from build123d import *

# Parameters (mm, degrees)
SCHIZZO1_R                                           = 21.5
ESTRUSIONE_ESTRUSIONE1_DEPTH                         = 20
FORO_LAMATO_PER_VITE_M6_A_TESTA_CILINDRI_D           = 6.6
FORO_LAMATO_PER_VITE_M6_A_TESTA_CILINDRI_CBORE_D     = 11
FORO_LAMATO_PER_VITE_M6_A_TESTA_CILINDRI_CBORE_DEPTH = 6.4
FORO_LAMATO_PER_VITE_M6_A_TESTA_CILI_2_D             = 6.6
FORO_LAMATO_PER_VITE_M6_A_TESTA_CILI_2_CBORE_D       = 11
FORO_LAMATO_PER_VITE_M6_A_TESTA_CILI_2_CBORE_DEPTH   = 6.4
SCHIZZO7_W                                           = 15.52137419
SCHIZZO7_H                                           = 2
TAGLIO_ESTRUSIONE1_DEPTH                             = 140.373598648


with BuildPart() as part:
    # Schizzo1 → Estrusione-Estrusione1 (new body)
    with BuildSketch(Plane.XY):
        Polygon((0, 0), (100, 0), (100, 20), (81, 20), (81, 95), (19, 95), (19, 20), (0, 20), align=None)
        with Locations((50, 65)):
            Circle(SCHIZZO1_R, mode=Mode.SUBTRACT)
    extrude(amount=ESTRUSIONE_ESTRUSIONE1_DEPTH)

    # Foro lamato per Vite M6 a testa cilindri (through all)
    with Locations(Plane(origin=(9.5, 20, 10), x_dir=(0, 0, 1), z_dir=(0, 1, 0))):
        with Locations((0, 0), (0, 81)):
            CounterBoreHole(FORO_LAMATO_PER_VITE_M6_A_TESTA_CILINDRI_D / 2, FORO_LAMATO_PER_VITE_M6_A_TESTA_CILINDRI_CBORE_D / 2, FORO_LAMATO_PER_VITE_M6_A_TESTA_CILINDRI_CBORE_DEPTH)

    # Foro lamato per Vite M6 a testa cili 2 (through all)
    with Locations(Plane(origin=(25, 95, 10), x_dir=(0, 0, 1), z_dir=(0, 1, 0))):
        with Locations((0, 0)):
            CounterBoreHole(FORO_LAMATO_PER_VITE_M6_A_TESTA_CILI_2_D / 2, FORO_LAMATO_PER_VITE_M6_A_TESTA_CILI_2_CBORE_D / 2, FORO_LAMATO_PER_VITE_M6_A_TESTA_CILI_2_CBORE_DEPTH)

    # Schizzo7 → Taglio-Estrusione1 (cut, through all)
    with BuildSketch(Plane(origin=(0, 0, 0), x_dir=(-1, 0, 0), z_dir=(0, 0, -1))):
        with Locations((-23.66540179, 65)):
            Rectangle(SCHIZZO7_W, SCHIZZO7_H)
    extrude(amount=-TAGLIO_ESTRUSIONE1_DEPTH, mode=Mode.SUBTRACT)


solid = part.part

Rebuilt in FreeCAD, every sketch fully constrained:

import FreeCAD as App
import Part
import Sketcher
Q = App.Units.Quantity

doc = App.newDocument("Part")
body = doc.addObject("PartDesign::Body", "Body")

sketch1 = doc.addObject("Sketcher::SketchObject", "Sketch")
body.addObject(sketch1)
sketch1.AttachmentSupport = (doc.XY_Plane, [""])
sketch1.MapMode = "FlatFace"
sketch1.addGeometry(Part.LineSegment(App.Vector(0, 0, 0), App.Vector(100, 0, 0)), False)
sketch1.addGeometry(Part.LineSegment(App.Vector(100, 0, 0), App.Vector(100, 20, 0)), False)
sketch1.addGeometry(Part.LineSegment(App.Vector(100, 20, 0), App.Vector(81, 20, 0)), False)
sketch1.addGeometry(Part.LineSegment(App.Vector(81, 20, 0), App.Vector(81, 95, 0)), False)
sketch1.addGeometry(Part.LineSegment(App.Vector(81, 95, 0), App.Vector(19, 95, 0)), False)
sketch1.addGeometry(Part.LineSegment(App.Vector(19, 95, 0), App.Vector(19, 20, 0)), False)
sketch1.addGeometry(Part.LineSegment(App.Vector(19, 20, 0), App.Vector(0, 20, 0)), False)
sketch1.addGeometry(Part.LineSegment(App.Vector(0, 20, 0), App.Vector(0, 0, 0)), False)
sketch1.addGeometry(Part.Circle(App.Vector(50, 65, 0), App.Vector(0, 0, 1), 21.5), False)
sketch1.addConstraint(Sketcher.Constraint("Coincident", 0, 2, 1, 1))
sketch1.addConstraint(Sketcher.Constraint("Coincident", 1, 2, 2, 1))
sketch1.addConstraint(Sketcher.Constraint("Coincident", 2, 2, 3, 1))
sketch1.addConstraint(Sketcher.Constraint("Coincident", 3, 2, 4, 1))
sketch1.addConstraint(Sketcher.Constraint("Coincident", 4, 2, 5, 1))
sketch1.addConstraint(Sketcher.Constraint("Coincident", 5, 2, 6, 1))
sketch1.addConstraint(Sketcher.Constraint("Coincident", 6, 2, 7, 1))
sketch1.addConstraint(Sketcher.Constraint("Coincident", 7, 2, 0, 1))
sketch1.addConstraint(Sketcher.Constraint("Horizontal", 0))
sketch1.addConstraint(Sketcher.Constraint("Vertical", 1))
sketch1.addConstraint(Sketcher.Constraint("Horizontal", 2))
sketch1.addConstraint(Sketcher.Constraint("Vertical", 3))
sketch1.addConstraint(Sketcher.Constraint("Horizontal", 4))
sketch1.addConstraint(Sketcher.Constraint("Vertical", 5))
sketch1.addConstraint(Sketcher.Constraint("Horizontal", 6))
sketch1.addConstraint(Sketcher.Constraint("Vertical", 7))
sketch1.addConstraint(Sketcher.Constraint("Coincident", 7, 2, -1, 1))
sketch1.addConstraint(Sketcher.Constraint("Horizontal", 2, 2, 5, 2))
sketch1.addConstraint(Sketcher.Constraint("Equal", 2, 6))
sketch1.addConstraint(Sketcher.Constraint("Diameter", 8, Q("43 mm")))
sketch1.addConstraint(Sketcher.Constraint("DistanceX", 0, 1, 0, 2, Q("100 mm")))
sketch1.addConstraint(Sketcher.Constraint("DistanceX", 2, 2, 2, 1, Q("19 mm")))
sketch1.addConstraint(Sketcher.Constraint("DistanceY", 1, 1, 1, 2, Q("20 mm")))
sketch1.addConstraint(Sketcher.Constraint("DistanceY", 3, 1, 3, 2, Q("75 mm")))
sketch1.addConstraint(Sketcher.Constraint("DistanceX", -1, 1, 8, 3, Q("50 mm")))
sketch1.addConstraint(Sketcher.Constraint("DistanceY", -1, 1, 8, 3, Q("65 mm")))
pad1 = doc.addObject("PartDesign::Pad", "Pad")
body.addObject(pad1)
pad1.Profile = sketch1
pad1.Length = 20

sketch2 = doc.addObject("Sketcher::SketchObject", "Sketch001")
body.addObject(sketch2)
sketch2.AttachmentSupport = (doc.XZ_Plane, [""])
sketch2.MapMode = "FlatFace"
sketch2.AttachmentOffset = App.Placement(App.Vector(0, 0, -20), App.Rotation())
sketch2.addGeometry(Part.Circle(App.Vector(9.5, 10, 0), App.Vector(0, 0, 1), 3.3), False)
sketch2.addGeometry(Part.Circle(App.Vector(90.5, 10, 0), App.Vector(0, 0, 1), 3.3), False)
sketch2.addConstraint(Sketcher.Constraint("Equal", 0, 1))
sketch2.addConstraint(Sketcher.Constraint("Horizontal", 0, 3, 1, 3))
sketch2.addConstraint(Sketcher.Constraint("Diameter", 0, Q("6.6 mm")))
sketch2.addConstraint(Sketcher.Constraint("DistanceY", -1, 1, 0, 3, Q("10 mm")))
sketch2.addConstraint(Sketcher.Constraint("DistanceX", 0, 3, 1, 3, Q("81 mm")))
sketch2.addConstraint(Sketcher.Constraint("DistanceX", -1, 1, 0, 3, Q("9.5 mm")))
doc.recompute()
hole = doc.addObject("PartDesign::Hole", "Hole")
body.addObject(hole)
hole.Profile = sketch2
hole.ThreadType = "None"
hole.Diameter = 6.6
hole.DepthType = "ThroughAll"
hole.HoleCutType = "Counterbore"
hole.HoleCutDiameter = 11
hole.HoleCutDepth = 6.4
hole.Reversed = True

sketch3 = doc.addObject("Sketcher::SketchObject", "Sketch002")
body.addObject(sketch3)
sketch3.AttachmentSupport = (doc.XZ_Plane, [""])
sketch3.MapMode = "FlatFace"
sketch3.AttachmentOffset = App.Placement(App.Vector(0, 0, -95), App.Rotation())
sketch3.addGeometry(Part.Circle(App.Vector(25, 10, 0), App.Vector(0, 0, 1), 3.3), False)
sketch3.addConstraint(Sketcher.Constraint("Diameter", 0, Q("6.6 mm")))
sketch3.addConstraint(Sketcher.Constraint("DistanceX", -1, 1, 0, 3, Q("25 mm")))
sketch3.addConstraint(Sketcher.Constraint("DistanceY", -1, 1, 0, 3, Q("10 mm")))
doc.recompute()
hole2 = doc.addObject("PartDesign::Hole", "Hole001")
body.addObject(hole2)
hole2.Profile = sketch3
hole2.ThreadType = "None"
hole2.Diameter = 6.6
hole2.DepthType = "ThroughAll"
hole2.HoleCutType = "Counterbore"
hole2.HoleCutDiameter = 11
hole2.HoleCutDepth = 6.4
hole2.Reversed = True

sketch4 = doc.addObject("Sketcher::SketchObject", "Sketch003")
body.addObject(sketch4)
sketch4.AttachmentSupport = (doc.XY_Plane, [""])
sketch4.MapMode = "FlatFace"
sketch4.addGeometry(Part.LineSegment(App.Vector(31.426089, 66, 0), App.Vector(31.426089, 64, 0)), False)
sketch4.addGeometry(Part.LineSegment(App.Vector(31.426089, 64, 0), App.Vector(15.904715, 64, 0)), False)
sketch4.addGeometry(Part.LineSegment(App.Vector(15.904715, 64, 0), App.Vector(15.904715, 66, 0)), False)
sketch4.addGeometry(Part.LineSegment(App.Vector(15.904715, 66, 0), App.Vector(31.426089, 66, 0)), False)
sketch4.addConstraint(Sketcher.Constraint("Coincident", 0, 2, 1, 1))
sketch4.addConstraint(Sketcher.Constraint("Coincident", 1, 2, 2, 1))
sketch4.addConstraint(Sketcher.Constraint("Coincident", 2, 2, 3, 1))
sketch4.addConstraint(Sketcher.Constraint("Coincident", 3, 2, 0, 1))
sketch4.addConstraint(Sketcher.Constraint("Vertical", 0))
sketch4.addConstraint(Sketcher.Constraint("Horizontal", 1))
sketch4.addConstraint(Sketcher.Constraint("Vertical", 2))
sketch4.addConstraint(Sketcher.Constraint("Horizontal", 3))
sketch4.addConstraint(Sketcher.Constraint("DistanceY", 0, 2, 0, 1, Q("2 mm")))
sketch4.addConstraint(Sketcher.Constraint("DistanceY", -1, 1, 0, 2, Q("64 mm")))
sketch4.addConstraint(Sketcher.Constraint("DistanceX", 1, 2, 1, 1, Q("15.521374 mm")))
sketch4.addConstraint(Sketcher.Constraint("DistanceX", -1, 1, 0, 2, Q("31.426089 mm")))
pocket1 = doc.addObject("PartDesign::Pocket", "Pocket")
body.addObject(pocket1)
pocket1.Profile = sketch4
pocket1.Type = "ThroughAll"
pocket1.Reversed = True

doc.recompute()
